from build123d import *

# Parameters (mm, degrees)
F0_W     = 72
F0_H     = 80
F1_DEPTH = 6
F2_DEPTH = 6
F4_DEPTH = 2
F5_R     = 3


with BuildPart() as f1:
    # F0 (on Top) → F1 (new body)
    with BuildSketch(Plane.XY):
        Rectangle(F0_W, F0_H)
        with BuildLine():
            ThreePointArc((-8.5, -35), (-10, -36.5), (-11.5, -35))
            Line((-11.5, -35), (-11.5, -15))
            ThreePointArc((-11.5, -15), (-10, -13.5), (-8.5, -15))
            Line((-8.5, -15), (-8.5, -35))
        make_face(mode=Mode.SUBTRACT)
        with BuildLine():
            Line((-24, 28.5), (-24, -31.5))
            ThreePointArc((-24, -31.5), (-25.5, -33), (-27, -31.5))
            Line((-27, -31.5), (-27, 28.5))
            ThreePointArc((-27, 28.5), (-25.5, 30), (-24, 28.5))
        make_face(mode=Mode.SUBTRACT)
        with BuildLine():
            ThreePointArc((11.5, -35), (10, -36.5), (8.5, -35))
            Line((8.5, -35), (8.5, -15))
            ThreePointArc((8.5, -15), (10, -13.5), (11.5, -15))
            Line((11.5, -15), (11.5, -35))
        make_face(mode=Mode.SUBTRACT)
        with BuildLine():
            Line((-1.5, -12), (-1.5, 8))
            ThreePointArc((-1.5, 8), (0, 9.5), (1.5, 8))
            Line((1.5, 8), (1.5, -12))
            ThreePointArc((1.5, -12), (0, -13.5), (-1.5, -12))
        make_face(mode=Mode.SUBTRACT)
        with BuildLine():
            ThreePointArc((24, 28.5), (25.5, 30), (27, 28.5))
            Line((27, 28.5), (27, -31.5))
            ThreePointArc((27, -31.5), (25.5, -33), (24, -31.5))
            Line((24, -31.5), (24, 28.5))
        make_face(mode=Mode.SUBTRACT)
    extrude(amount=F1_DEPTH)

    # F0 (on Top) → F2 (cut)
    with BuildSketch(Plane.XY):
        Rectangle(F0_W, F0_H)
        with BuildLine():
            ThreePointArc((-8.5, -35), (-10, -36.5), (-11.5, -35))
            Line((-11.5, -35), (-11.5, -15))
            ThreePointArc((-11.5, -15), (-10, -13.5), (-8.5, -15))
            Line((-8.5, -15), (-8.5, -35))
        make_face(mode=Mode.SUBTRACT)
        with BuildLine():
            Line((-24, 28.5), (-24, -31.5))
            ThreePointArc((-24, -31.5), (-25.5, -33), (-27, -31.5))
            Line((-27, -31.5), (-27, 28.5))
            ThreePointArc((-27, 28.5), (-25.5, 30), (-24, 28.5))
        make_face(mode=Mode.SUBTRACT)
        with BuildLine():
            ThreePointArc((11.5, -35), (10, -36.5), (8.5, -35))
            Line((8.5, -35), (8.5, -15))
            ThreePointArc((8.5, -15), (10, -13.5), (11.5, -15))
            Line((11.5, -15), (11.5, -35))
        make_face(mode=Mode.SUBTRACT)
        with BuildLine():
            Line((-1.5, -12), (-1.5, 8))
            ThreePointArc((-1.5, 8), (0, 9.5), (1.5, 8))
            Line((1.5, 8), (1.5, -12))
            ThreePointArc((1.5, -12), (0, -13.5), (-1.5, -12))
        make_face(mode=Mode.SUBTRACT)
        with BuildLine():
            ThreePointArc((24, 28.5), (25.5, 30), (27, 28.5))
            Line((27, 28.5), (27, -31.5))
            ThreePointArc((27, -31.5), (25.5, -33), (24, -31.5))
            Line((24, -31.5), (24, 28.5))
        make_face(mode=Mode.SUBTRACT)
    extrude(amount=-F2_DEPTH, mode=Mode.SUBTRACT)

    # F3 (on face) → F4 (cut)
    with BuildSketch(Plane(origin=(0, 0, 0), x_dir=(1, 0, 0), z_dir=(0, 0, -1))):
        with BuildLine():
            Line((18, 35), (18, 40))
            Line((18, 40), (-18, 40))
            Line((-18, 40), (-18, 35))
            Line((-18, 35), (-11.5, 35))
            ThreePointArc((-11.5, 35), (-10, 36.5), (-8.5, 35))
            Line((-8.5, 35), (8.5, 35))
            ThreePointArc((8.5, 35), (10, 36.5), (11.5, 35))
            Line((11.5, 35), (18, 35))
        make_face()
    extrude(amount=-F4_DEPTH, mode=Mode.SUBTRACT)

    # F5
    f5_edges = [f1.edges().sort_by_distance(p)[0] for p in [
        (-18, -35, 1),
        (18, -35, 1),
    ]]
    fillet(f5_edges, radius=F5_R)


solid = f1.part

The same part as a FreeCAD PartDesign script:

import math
import FreeCAD as App
import Part
import Sketcher
Q = App.Units.Quantity


def edges_at(feature, points):
    """Names of the edges that pass closest to the given points."""
    edges = feature.Shape.Edges
    near = lambda p: min(range(len(edges)), key=lambda i: edges[i].distToShape(Part.Vertex(*p))[0])
    return sorted({f"Edge{near(p) + 1}" for p in points})

doc = App.newDocument("Part")
body = doc.addObject("PartDesign::Body", "Body")

# Sketch on XY plane
sketch1 = doc.addObject("Sketcher::SketchObject", "Sketch")
body.addObject(sketch1)
sketch1.AttachmentSupport = (doc.XY_Plane, [""])
sketch1.MapMode = "FlatFace"
sketch1.addGeometry([
    Part.LineSegment(App.Vector(-36, 40, 0), App.Vector(-36, -40, 0)),  # 0
    Part.LineSegment(App.Vector(-36, -40, 0), App.Vector(36, -40, 0)),  # 1
    Part.LineSegment(App.Vector(36, -40, 0), App.Vector(36, 40, 0)),  # 2
    Part.LineSegment(App.Vector(36, 40, 0), App.Vector(-36, 40, 0)),  # 3
    Part.LineSegment(App.Vector(-8.5, -15, 0), App.Vector(-8.5, -35, 0)),  # 4
    Part.ArcOfCircle(Part.Circle(App.Vector(-10, -35, 0), App.Vector(0, 0, 1), 1.5), math.radians(180), math.radians(360)),  # 5
    Part.LineSegment(App.Vector(-11.5, -35, 0), App.Vector(-11.5, -15, 0)),  # 6
    Part.ArcOfCircle(Part.Circle(App.Vector(-10, -15, 0), App.Vector(0, 0, 1), 1.5), math.radians(0), math.radians(180)),  # 7
    Part.LineSegment(App.Vector(11.5, -15, 0), App.Vector(11.5, -35, 0)),  # 8
    Part.ArcOfCircle(Part.Circle(App.Vector(10, -35, 0), App.Vector(0, 0, 1), 1.5), math.radians(180), math.radians(360)),  # 9
    Part.LineSegment(App.Vector(8.5, -35, 0), App.Vector(8.5, -15, 0)),  # 10
    Part.ArcOfCircle(Part.Circle(App.Vector(10, -15, 0), App.Vector(0, 0, 1), 1.5), math.radians(0), math.radians(180)),  # 11
    Part.ArcOfCircle(Part.Circle(App.Vector(-25.5, 28.5, 0), App.Vector(0, 0, 1), 1.5), math.radians(0), math.radians(180)),  # 12
    Part.LineSegment(App.Vector(-24, 28.5, 0), App.Vector(-24, -31.5, 0)),  # 13
    Part.ArcOfCircle(Part.Circle(App.Vector(-25.5, -31.5, 0), App.Vector(0, 0, 1), 1.5), math.radians(180), math.radians(360)),  # 14
    Part.LineSegment(App.Vector(-27, -31.5, 0), App.Vector(-27, 28.5, 0)),  # 15
    Part.ArcOfCircle(Part.Circle(App.Vector(0, -12, 0), App.Vector(0, 0, 1), 1.5), math.radians(180), math.radians(360)),  # 16
    Part.LineSegment(App.Vector(-1.5, -12, 0), App.Vector(-1.5, 8, 0)),  # 17
    Part.ArcOfCircle(Part.Circle(App.Vector(0, 8, 0), App.Vector(0, 0, 1), 1.5), math.radians(0), math.radians(180)),  # 18
    Part.LineSegment(App.Vector(1.5, 8, 0), App.Vector(1.5, -12, 0)),  # 19
    Part.LineSegment(App.Vector(24, -31.5, 0), App.Vector(24, 28.5, 0)),  # 20
    Part.ArcOfCircle(Part.Circle(App.Vector(25.5, 28.5, 0), App.Vector(0, 0, 1), 1.5), math.radians(0), math.radians(180)),  # 21
    Part.LineSegment(App.Vector(27, 28.5, 0), App.Vector(27, -31.5, 0)),  # 22
    Part.ArcOfCircle(Part.Circle(App.Vector(25.5, -31.5, 0), App.Vector(0, 0, 1), 1.5), math.radians(180), math.radians(360)),  # 23
], False)
sketch1.addConstraint([
    Sketcher.Constraint("Coincident", 0, 2, 1, 1),
    Sketcher.Constraint("Coincident", 1, 2, 2, 1),
    Sketcher.Constraint("Coincident", 2, 2, 3, 1),
    Sketcher.Constraint("Coincident", 3, 2, 0, 1),
    Sketcher.Constraint("Tangent", 4, 2, 5, 2),
    Sketcher.Constraint("Tangent", 5, 1, 6, 1),
    Sketcher.Constraint("Tangent", 6, 2, 7, 2),
    Sketcher.Constraint("Tangent", 7, 1, 4, 1),
    Sketcher.Constraint("Tangent", 8, 2, 9, 2),
    Sketcher.Constraint("Tangent", 9, 1, 10, 1),
    Sketcher.Constraint("Tangent", 10, 2, 11, 2),
    Sketcher.Constraint("Tangent", 11, 1, 8, 1),
    Sketcher.Constraint("Tangent", 12, 1, 13, 1),
    Sketcher.Constraint("Tangent", 13, 2, 14, 2),
    Sketcher.Constraint("Tangent", 14, 1, 15, 1),
    Sketcher.Constraint("Tangent", 15, 2, 12, 2),
    Sketcher.Constraint("Tangent", 16, 1, 17, 1),
    Sketcher.Constraint("Tangent", 17, 2, 18, 2),
    Sketcher.Constraint("Tangent", 18, 1, 19, 1),
    Sketcher.Constraint("Tangent", 19, 2, 16, 2),
    Sketcher.Constraint("Tangent", 20, 2, 21, 2),
    Sketcher.Constraint("Tangent", 21, 1, 22, 1),
    Sketcher.Constraint("Tangent", 22, 2, 23, 2),
    Sketcher.Constraint("Tangent", 23, 1, 20, 1),
    Sketcher.Constraint("Vertical", 0),
    Sketcher.Constraint("Horizontal", 1),
    Sketcher.Constraint("Vertical", 2),
    Sketcher.Constraint("Horizontal", 3),
    Sketcher.Constraint("Vertical", 4),
    Sketcher.Constraint("Vertical", 6),
    Sketcher.Constraint("Vertical", 8),
    Sketcher.Constraint("Vertical", 10),
    Sketcher.Constraint("Vertical", 13),
    Sketcher.Constraint("Vertical", 15),
    Sketcher.Constraint("Vertical", 17),
    Sketcher.Constraint("Vertical", 19),
    Sketcher.Constraint("Vertical", 20),
    Sketcher.Constraint("Vertical", 22),
    Sketcher.Constraint("Equal", 7, 9),
    Sketcher.Constraint("Equal", 11, 12),
    Sketcher.Constraint("Equal", 14, 16),
    Sketcher.Constraint("Equal", 18, 21),
    Sketcher.Constraint("Symmetric", 0, 2, 2, 2, -1, 1),
    Sketcher.Constraint("Symmetric", 5, 3, 9, 3, -2),
    Sketcher.Constraint("Symmetric", 12, 3, 21, 3, -2),
    Sketcher.Constraint("PointOnObject", 16, 3, -2),
    Sketcher.Constraint("Horizontal", 7, 3, 11, 3),
    Sketcher.Constraint("Horizontal", 14, 3, 23, 3),
    Sketcher.Constraint("Equal", 10, 17),
    Sketcher.Constraint("Radius", 5, Q("1.5 mm")),
    Sketcher.Constraint("DistanceX", 1, 1, 1, 2, Q("72 mm")),
    Sketcher.Constraint("DistanceY", 0, 2, 0, 1, Q("80 mm")),
    Sketcher.Constraint("DistanceY", 4, 2, 4, 1, Q("20 mm")),
    Sketcher.Constraint("DistanceY", 13, 2, 13, 1, Q("60 mm")),
    Sketcher.Constraint("DistanceX", 5, 3, -1, 1, Q("10 mm")),
    Sketcher.Constraint("DistanceY", 5, 3, -1, 1, Q("35 mm")),
    Sketcher.Constraint("DistanceY", 16, 3, -1, 1, Q("12 mm")),
    Sketcher.Constraint("DistanceX", 12, 1, -1, 1, Q("24 mm")),
    Sketcher.Constraint("DistanceY", -1, 1, 12, 3, Q("28.5 mm")),
])
pad1 = doc.addObject("PartDesign::Pad", "Pad")
body.addObject(pad1)
pad1.Profile = sketch1
pad1.Length = 6

# Sketch on XY plane
sketch2 = doc.addObject("Sketcher::SketchObject", "Sketch001")
body.addObject(sketch2)
sketch2.AttachmentSupport = (doc.XY_Plane, [""])
sketch2.MapMode = "FlatFace"
sketch2.addGeometry([
    Part.LineSegment(App.Vector(-36, 40, 0), App.Vector(-36, -40, 0)),  # 0
    Part.LineSegment(App.Vector(-36, -40, 0), App.Vector(36, -40, 0)),  # 1
    Part.LineSegment(App.Vector(36, -40, 0), App.Vector(36, 40, 0)),  # 2
    Part.LineSegment(App.Vector(36, 40, 0), App.Vector(-36, 40, 0)),  # 3
    Part.LineSegment(App.Vector(-8.5, -15, 0), App.Vector(-8.5, -35, 0)),  # 4
    Part.ArcOfCircle(Part.Circle(App.Vector(-10, -35, 0), App.Vector(0, 0, 1), 1.5), math.radians(180), math.radians(360)),  # 5
    Part.LineSegment(App.Vector(-11.5, -35, 0), App.Vector(-11.5, -15, 0)),  # 6
    Part.ArcOfCircle(Part.Circle(App.Vector(-10, -15, 0), App.Vector(0, 0, 1), 1.5), math.radians(0), math.radians(180)),  # 7
    Part.LineSegment(App.Vector(11.5, -15, 0), App.Vector(11.5, -35, 0)),  # 8
    Part.ArcOfCircle(Part.Circle(App.Vector(10, -35, 0), App.Vector(0, 0, 1), 1.5), math.radians(180), math.radians(360)),  # 9
    Part.LineSegment(App.Vector(8.5, -35, 0), App.Vector(8.5, -15, 0)),  # 10
    Part.ArcOfCircle(Part.Circle(App.Vector(10, -15, 0), App.Vector(0, 0, 1), 1.5), math.radians(0), math.radians(180)),  # 11
    Part.ArcOfCircle(Part.Circle(App.Vector(-25.5, 28.5, 0), App.Vector(0, 0, 1), 1.5), math.radians(0), math.radians(180)),  # 12
    Part.LineSegment(App.Vector(-24, 28.5, 0), App.Vector(-24, -31.5, 0)),  # 13
    Part.ArcOfCircle(Part.Circle(App.Vector(-25.5, -31.5, 0), App.Vector(0, 0, 1), 1.5), math.radians(180), math.radians(360)),  # 14
    Part.LineSegment(App.Vector(-27, -31.5, 0), App.Vector(-27, 28.5, 0)),  # 15
    Part.ArcOfCircle(Part.Circle(App.Vector(0, -12, 0), App.Vector(0, 0, 1), 1.5), math.radians(180), math.radians(360)),  # 16
    Part.LineSegment(App.Vector(-1.5, -12, 0), App.Vector(-1.5, 8, 0)),  # 17
    Part.ArcOfCircle(Part.Circle(App.Vector(0, 8, 0), App.Vector(0, 0, 1), 1.5), math.radians(0), math.radians(180)),  # 18
    Part.LineSegment(App.Vector(1.5, 8, 0), App.Vector(1.5, -12, 0)),  # 19
    Part.LineSegment(App.Vector(24, -31.5, 0), App.Vector(24, 28.5, 0)),  # 20
    Part.ArcOfCircle(Part.Circle(App.Vector(25.5, 28.5, 0), App.Vector(0, 0, 1), 1.5), math.radians(0), math.radians(180)),  # 21
    Part.LineSegment(App.Vector(27, 28.5, 0), App.Vector(27, -31.5, 0)),  # 22
    Part.ArcOfCircle(Part.Circle(App.Vector(25.5, -31.5, 0), App.Vector(0, 0, 1), 1.5), math.radians(180), math.radians(360)),  # 23
], False)
sketch2.addConstraint([
    Sketcher.Constraint("Coincident", 0, 2, 1, 1),
    Sketcher.Constraint("Coincident", 1, 2, 2, 1),
    Sketcher.Constraint("Coincident", 2, 2, 3, 1),
    Sketcher.Constraint("Coincident", 3, 2, 0, 1),
    Sketcher.Constraint("Tangent", 4, 2, 5, 2),
    Sketcher.Constraint("Tangent", 5, 1, 6, 1),
    Sketcher.Constraint("Tangent", 6, 2, 7, 2),
    Sketcher.Constraint("Tangent", 7, 1, 4, 1),
    Sketcher.Constraint("Tangent", 8, 2, 9, 2),
    Sketcher.Constraint("Tangent", 9, 1, 10, 1),
    Sketcher.Constraint("Tangent", 10, 2, 11, 2),
    Sketcher.Constraint("Tangent", 11, 1, 8, 1),
    Sketcher.Constraint("Tangent", 12, 1, 13, 1),
    Sketcher.Constraint("Tangent", 13, 2, 14, 2),
    Sketcher.Constraint("Tangent", 14, 1, 15, 1),
    Sketcher.Constraint("Tangent", 15, 2, 12, 2),
    Sketcher.Constraint("Tangent", 16, 1, 17, 1),
    Sketcher.Constraint("Tangent", 17, 2, 18, 2),
    Sketcher.Constraint("Tangent", 18, 1, 19, 1),
    Sketcher.Constraint("Tangent", 19, 2, 16, 2),
    Sketcher.Constraint("Tangent", 20, 2, 21, 2),
    Sketcher.Constraint("Tangent", 21, 1, 22, 1),
    Sketcher.Constraint("Tangent", 22, 2, 23, 2),
    Sketcher.Constraint("Tangent", 23, 1, 20, 1),
    Sketcher.Constraint("Vertical", 0),
    Sketcher.Constraint("Horizontal", 1),
    Sketcher.Constraint("Vertical", 2),
    Sketcher.Constraint("Horizontal", 3),
    Sketcher.Constraint("Vertical", 4),
    Sketcher.Constraint("Vertical", 6),
    Sketcher.Constraint("Vertical", 8),
    Sketcher.Constraint("Vertical", 10),
    Sketcher.Constraint("Vertical", 13),
    Sketcher.Constraint("Vertical", 15),
    Sketcher.Constraint("Vertical", 17),
    Sketcher.Constraint("Vertical", 19),
    Sketcher.Constraint("Vertical", 20),
    Sketcher.Constraint("Vertical", 22),
    Sketcher.Constraint("Equal", 7, 9),
    Sketcher.Constraint("Equal", 11, 12),
    Sketcher.Constraint("Equal", 14, 16),
    Sketcher.Constraint("Equal", 18, 21),
    Sketcher.Constraint("Symmetric", 0, 2, 2, 2, -1, 1),
    Sketcher.Constraint("Symmetric", 5, 3, 9, 3, -2),
    Sketcher.Constraint("Symmetric", 12, 3, 21, 3, -2),
    Sketcher.Constraint("PointOnObject", 16, 3, -2),
    Sketcher.Constraint("Horizontal", 7, 3, 11, 3),
    Sketcher.Constraint("Horizontal", 14, 3, 23, 3),
    Sketcher.Constraint("Equal", 10, 17),
    Sketcher.Constraint("Radius", 5, Q("1.5 mm")),
    Sketcher.Constraint("DistanceX", 1, 1, 1, 2, Q("72 mm")),
    Sketcher.Constraint("DistanceY", 0, 2, 0, 1, Q("80 mm")),
    Sketcher.Constraint("DistanceY", 4, 2, 4, 1, Q("20 mm")),
    Sketcher.Constraint("DistanceY", 13, 2, 13, 1, Q("60 mm")),
    Sketcher.Constraint("DistanceX", 5, 3, -1, 1, Q("10 mm")),
    Sketcher.Constraint("DistanceY", 5, 3, -1, 1, Q("35 mm")),
    Sketcher.Constraint("DistanceY", 16, 3, -1, 1, Q("12 mm")),
    Sketcher.Constraint("DistanceX", 12, 1, -1, 1, Q("24 mm")),
    Sketcher.Constraint("DistanceY", -1, 1, 12, 3, Q("28.5 mm")),
])
pocket1 = doc.addObject("PartDesign::Pocket", "Pocket")
body.addObject(pocket1)
pocket1.Profile = sketch2
pocket1.Length = 6

# Sketch on XY plane
sketch3 = doc.addObject("Sketcher::SketchObject", "Sketch002")
body.addObject(sketch3)
sketch3.AttachmentSupport = (doc.XY_Plane, [""])
sketch3.MapMode = "FlatFace"
sketch3.addGeometry([
    Part.LineSegment(App.Vector(18, -35, 0), App.Vector(18, -40, 0)),  # 0
    Part.LineSegment(App.Vector(18, -40, 0), App.Vector(-18, -40, 0)),  # 1
    Part.LineSegment(App.Vector(-18, -40, 0), App.Vector(-18, -35, 0)),  # 2
    Part.LineSegment(App.Vector(-18, -35, 0), App.Vector(-11.5, -35, 0)),  # 3
    Part.ArcOfCircle(Part.Circle(App.Vector(-10, -35, 0), App.Vector(0, 0, 1), 1.5), math.radians(180), math.radians(360)),  # 4
    Part.LineSegment(App.Vector(-8.5, -35, 0), App.Vector(8.5, -35, 0)),  # 5
    Part.ArcOfCircle(Part.Circle(App.Vector(10, -35, 0), App.Vector(0, 0, 1), 1.5), math.radians(180), math.radians(360)),  # 6
    Part.LineSegment(App.Vector(11.5, -35, 0), App.Vector(18, -35, 0)),  # 7
], False)
sketch3.addConstraint([
    Sketcher.Constraint("Coincident", 0, 2, 1, 1),
    Sketcher.Constraint("Coincident", 1, 2, 2, 1),
    Sketcher.Constraint("Coincident", 2, 2, 3, 1),
    Sketcher.Constraint("Coincident", 3, 2, 4, 1),
    Sketcher.Constraint("Coincident", 4, 2, 5, 1),
    Sketcher.Constraint("Coincident", 5, 2, 6, 1),
    Sketcher.Constraint("Coincident", 6, 2, 7, 1),
    Sketcher.Constraint("Coincident", 7, 2, 0, 1),
    Sketcher.Constraint("Vertical", 0),
    Sketcher.Constraint("Horizontal", 1),
    Sketcher.Constraint("Vertical", 2),
    Sketcher.Constraint("Horizontal", 3),
    Sketcher.Constraint("Horizontal", 5),
    Sketcher.Constraint("Horizontal", 7),
    Sketcher.Constraint("Equal", 4, 6),
    Sketcher.Constraint("Symmetric", 4, 3, 6, 3, -2),
    Sketcher.Constraint("Symmetric", 2, 2, 7, 2, -2),
    Sketcher.Constraint("Horizontal", 6, 3, 2, 2),
    Sketcher.Constraint("Horizontal", 3, 2, 4, 2),
    Sketcher.Constraint("Radius", 4, Q("1.5 mm")),
    Sketcher.Constraint("DistanceX", 1, 2, 1, 1, Q("36 mm")),
    Sketcher.Constraint("DistanceX", 5, 1, 5, 2, Q("17 mm")),
    Sketcher.Constraint("DistanceY", 0, 2, 0, 1, Q("5 mm")),
    Sketcher.Constraint("DistanceY", 4, 3, -1, 1, Q("35 mm")),
])
pocket2 = doc.addObject("PartDesign::Pocket", "Pocket001")
body.addObject(pocket2)
pocket2.Profile = sketch3
pocket2.Length = 2
pocket2.Reversed = True
doc.recompute()

fillet = doc.addObject("PartDesign::Fillet", "Fillet")
body.addObject(fillet)
fillet.Base = (pocket2, edges_at(pocket2, [(-18, -35, 1), (18, -35, 1)]))
fillet.Radius = 3

doc.recompute()
